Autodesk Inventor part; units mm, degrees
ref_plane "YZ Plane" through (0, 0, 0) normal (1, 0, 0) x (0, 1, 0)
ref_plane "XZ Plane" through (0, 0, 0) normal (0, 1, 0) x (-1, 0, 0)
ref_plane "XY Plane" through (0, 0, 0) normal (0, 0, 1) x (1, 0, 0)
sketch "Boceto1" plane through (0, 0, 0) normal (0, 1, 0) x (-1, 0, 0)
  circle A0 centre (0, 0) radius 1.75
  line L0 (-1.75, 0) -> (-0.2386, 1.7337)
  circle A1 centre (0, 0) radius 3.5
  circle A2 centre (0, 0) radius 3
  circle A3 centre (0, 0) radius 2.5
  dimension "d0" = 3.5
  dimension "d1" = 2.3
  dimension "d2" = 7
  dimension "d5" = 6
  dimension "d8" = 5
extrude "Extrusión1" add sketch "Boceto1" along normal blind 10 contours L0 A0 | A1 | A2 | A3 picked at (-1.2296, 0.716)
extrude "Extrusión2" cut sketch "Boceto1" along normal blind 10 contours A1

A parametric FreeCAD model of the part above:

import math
import FreeCAD as App
import Part
import Sketcher

V = App.Vector

doc = App.newDocument("Part")
body = doc.addObject("PartDesign::Body", "Body")

sketch1 = doc.addObject("Sketcher::SketchObject", "Sketch")
body.addObject(sketch1)
sketch1.AttachmentSupport = (doc.XZ_Plane, [""])
sketch1.MapMode = "FlatFace"
sketch1.addGeometry(Part.Circle(V(0, 0, 0), V(0, 0, 1), 3.5), False)
sketch1.addGeometry(Part.LineSegment(V(1.75, 0, 0), V(0.2386, 1.7337, 0)), False)
sketch1.addGeometry(Part.ArcOfCircle(Part.Circle(V(0, 0, 0), V(0, 0, 1), 1.75), math.radians(82.16391), math.radians(360)), False)
sketch1.addConstraint(Sketcher.Constraint("Coincident", 1, 1, 2, 2))
sketch1.addConstraint(Sketcher.Constraint("Coincident", 2, 1, 1, 2))
sketch1.addConstraint(Sketcher.Constraint("Coincident", 0, 3, -1, 1))
sketch1.addConstraint(Sketcher.Constraint("Coincident", 2, 3, -1, 1))
sketch1.addConstraint(Sketcher.Constraint("PointOnObject", 1, 1, -1))
sketch1.addConstraint(Sketcher.Constraint("Diameter", 0, 7.0))
sketch1.addConstraint(Sketcher.Constraint("Radius", 2, 1.75))
sketch1.addConstraint(Sketcher.Constraint("Distance", 1, 2.3))
pad1 = doc.addObject("PartDesign::Pad", "Pad")
body.addObject(pad1)
pad1.Profile = sketch1
pad1.Length = 10
pad1.Reversed = True

sketch2 = doc.addObject("Sketcher::SketchObject", "Sketch001")
body.addObject(sketch2)
sketch2.AttachmentSupport = (doc.XZ_Plane, [""])
sketch2.MapMode = "FlatFace"
sketch2.addGeometry(Part.Circle(V(0, 0, 0), V(0, 0, 1), 3.5), False)
sketch2.addGeometry(Part.Circle(V(0, 0, 0), V(0, 0, 1), 3), False)
sketch2.addConstraint(Sketcher.Constraint("Coincident", 0, 3, -1, 1))
sketch2.addConstraint(Sketcher.Constraint("Coincident", 1, 3, -1, 1))
sketch2.addConstraint(Sketcher.Constraint("Diameter", 0, 7.0))
sketch2.addConstraint(Sketcher.Constraint("Diameter", 1, 6.0))
pocket1 = doc.addObject("PartDesign::Pocket", "Pocket")
body.addObject(pocket1)
pocket1.Profile = sketch2
pocket1.Length = 10

doc.recompute()
